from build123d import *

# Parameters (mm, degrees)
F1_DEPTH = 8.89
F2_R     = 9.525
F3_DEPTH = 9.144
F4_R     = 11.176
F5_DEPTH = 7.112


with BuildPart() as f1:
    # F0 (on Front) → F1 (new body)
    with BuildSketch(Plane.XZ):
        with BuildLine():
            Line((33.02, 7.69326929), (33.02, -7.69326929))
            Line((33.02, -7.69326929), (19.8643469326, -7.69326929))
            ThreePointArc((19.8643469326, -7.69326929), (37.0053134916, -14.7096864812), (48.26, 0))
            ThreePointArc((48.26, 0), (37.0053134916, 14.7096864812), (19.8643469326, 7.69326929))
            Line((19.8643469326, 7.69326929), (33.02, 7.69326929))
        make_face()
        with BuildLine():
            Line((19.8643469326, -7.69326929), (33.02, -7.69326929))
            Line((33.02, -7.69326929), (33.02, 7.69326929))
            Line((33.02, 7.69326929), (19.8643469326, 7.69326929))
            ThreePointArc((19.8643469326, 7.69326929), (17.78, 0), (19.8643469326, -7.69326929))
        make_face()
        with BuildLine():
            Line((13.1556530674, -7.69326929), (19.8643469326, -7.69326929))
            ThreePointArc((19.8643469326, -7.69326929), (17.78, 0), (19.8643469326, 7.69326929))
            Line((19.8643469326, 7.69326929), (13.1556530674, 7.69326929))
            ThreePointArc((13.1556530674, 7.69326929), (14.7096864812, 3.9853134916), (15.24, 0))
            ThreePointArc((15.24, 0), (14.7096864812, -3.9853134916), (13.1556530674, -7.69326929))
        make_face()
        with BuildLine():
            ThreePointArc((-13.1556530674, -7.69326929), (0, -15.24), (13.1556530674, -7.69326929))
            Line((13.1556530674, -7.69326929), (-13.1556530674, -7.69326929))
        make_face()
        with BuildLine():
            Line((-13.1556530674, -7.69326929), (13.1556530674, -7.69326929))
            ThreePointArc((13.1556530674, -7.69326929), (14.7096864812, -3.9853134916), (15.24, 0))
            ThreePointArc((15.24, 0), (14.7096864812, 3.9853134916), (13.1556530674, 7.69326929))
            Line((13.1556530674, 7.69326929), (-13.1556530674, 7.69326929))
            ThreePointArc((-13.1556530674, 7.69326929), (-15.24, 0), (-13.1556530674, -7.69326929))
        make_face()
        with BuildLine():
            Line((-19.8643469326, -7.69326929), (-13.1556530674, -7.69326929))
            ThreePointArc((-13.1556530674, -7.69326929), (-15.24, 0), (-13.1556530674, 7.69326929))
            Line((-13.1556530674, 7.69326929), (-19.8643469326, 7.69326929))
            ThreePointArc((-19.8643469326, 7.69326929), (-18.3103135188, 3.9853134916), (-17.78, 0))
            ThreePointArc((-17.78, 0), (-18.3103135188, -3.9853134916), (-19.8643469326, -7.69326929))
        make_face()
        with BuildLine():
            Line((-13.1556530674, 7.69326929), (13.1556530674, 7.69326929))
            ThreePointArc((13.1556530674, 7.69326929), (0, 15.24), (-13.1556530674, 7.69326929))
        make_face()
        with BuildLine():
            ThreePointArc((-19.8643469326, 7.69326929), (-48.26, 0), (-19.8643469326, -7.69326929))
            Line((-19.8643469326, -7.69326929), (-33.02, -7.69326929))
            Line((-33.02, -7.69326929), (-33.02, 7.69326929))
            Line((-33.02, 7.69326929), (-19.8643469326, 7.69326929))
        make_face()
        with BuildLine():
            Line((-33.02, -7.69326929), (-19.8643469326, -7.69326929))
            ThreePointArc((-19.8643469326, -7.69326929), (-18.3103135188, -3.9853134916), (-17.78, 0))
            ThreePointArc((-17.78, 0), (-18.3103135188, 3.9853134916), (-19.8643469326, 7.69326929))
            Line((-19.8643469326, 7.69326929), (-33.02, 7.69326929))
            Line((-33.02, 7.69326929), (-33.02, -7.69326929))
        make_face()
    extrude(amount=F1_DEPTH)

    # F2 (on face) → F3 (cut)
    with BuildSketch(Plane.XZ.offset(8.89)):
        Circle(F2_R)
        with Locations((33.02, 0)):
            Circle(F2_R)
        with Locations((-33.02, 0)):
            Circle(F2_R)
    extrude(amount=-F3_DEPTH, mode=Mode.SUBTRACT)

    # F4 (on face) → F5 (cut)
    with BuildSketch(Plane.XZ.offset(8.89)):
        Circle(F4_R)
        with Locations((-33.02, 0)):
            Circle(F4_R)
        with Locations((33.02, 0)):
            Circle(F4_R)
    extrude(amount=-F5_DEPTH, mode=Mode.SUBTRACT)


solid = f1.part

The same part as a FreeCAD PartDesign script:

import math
import FreeCAD as App
import Part
import Sketcher

V = App.Vector
Q = App.Units.Quantity

doc = App.newDocument("Part")
body = doc.addObject("PartDesign::Body", "Body")

# Sketch on XZ plane
sketch1 = body.newObject("Sketcher::SketchObject", "Sketch")
sketch1.AttachmentSupport = (doc.getObject("XZ_Plane"), [""])
sketch1.MapMode = "FlatFace"
sketch1.addGeometry([
    Part.ArcOfCircle(Part.Circle(V(33.02, 0, 0), V(0, 0, 1), 15.24), math.radians(-149.681412), math.radians(0)),  # 0
    Part.ArcOfCircle(Part.Circle(V(33.02, 0, 0), V(0, 0, 1), 15.24), math.radians(0), math.radians(149.681412)),  # 1
    Part.LineSegment(V(19.864347, 7.693269, 0), V(13.155653, 7.693269, 0)),  # 2
    Part.ArcOfCircle(Part.Circle(V(0, 0, 0), V(0, 0, 1), 15.24), math.radians(30.318588), math.radians(149.681412)),  # 3
    Part.LineSegment(V(-13.155653, 7.693269, 0), V(-19.864347, 7.693269, 0)),  # 4
    Part.ArcOfCircle(Part.Circle(V(-33.02, 0, 0), V(0, 0, 1), 15.24), math.radians(30.318588), math.radians(329.681412)),  # 5
    Part.LineSegment(V(-19.864347, -7.693269, 0), V(-13.155653, -7.693269, 0)),  # 6
    Part.ArcOfCircle(Part.Circle(V(0, 0, 0), V(0, 0, 1), 15.24), math.radians(-149.681412), math.radians(-30.318588)),  # 7
    Part.LineSegment(V(13.155653, -7.693269, 0), V(19.864347, -7.693269, 0)),  # 8
], False)
sketch1.addConstraint([
    Sketcher.Constraint("Tangent", 0, 2, 1, 1),
    Sketcher.Constraint("Coincident", 1, 2, 2, 1),
    Sketcher.Constraint("Coincident", 2, 2, 3, 1),
    Sketcher.Constraint("Coincident", 3, 2, 4, 1),
    Sketcher.Constraint("Coincident", 4, 2, 5, 1),
    Sketcher.Constraint("Coincident", 5, 2, 6, 1),
    Sketcher.Constraint("Coincident", 6, 2, 7, 1),
    Sketcher.Constraint("Coincident", 7, 2, 8, 1),
    Sketcher.Constraint("Coincident", 8, 2, 0, 1),
    Sketcher.Constraint("Horizontal", 2),
    Sketcher.Constraint("Horizontal", 4),
    Sketcher.Constraint("Horizontal", 6),
    Sketcher.Constraint("Horizontal", 8),
    Sketcher.Constraint("Coincident", 3, 3, -1, 1),
    Sketcher.Constraint("Coincident", 7, 3, -1, 1),
    Sketcher.Constraint("Equal", 0, 1),
    Sketcher.Constraint("Equal", 1, 3),
    Sketcher.Constraint("Equal", 3, 5),
    Sketcher.Constraint("Equal", 5, 7),
    Sketcher.Constraint("Symmetric", 0, 3, 5, 3, -1, 1),
    Sketcher.Constraint("Symmetric", 1, 2, 4, 2, -2),
    Sketcher.Constraint("PointOnObject", 0, 2, -1),
    Sketcher.Constraint("Horizontal", 6, 2, 7, 2),
    Sketcher.Constraint("Vertical", 4, 2, 5, 2),
    Sketcher.Constraint("Radius", 0, Q("0.6 in")),
    Sketcher.Constraint("DistanceX", -1, 1, 0, 3, Q("1.3 in")),
    Sketcher.Constraint("DistanceX", 2, 2, 2, 1, 6.708694),
])
pad1 = body.newObject("PartDesign::Pad", "Pad")
pad1.Profile = sketch1
pad1.Length = Q("0.35 in")

# Sketch on XZ plane
sketch2 = body.newObject("Sketcher::SketchObject", "Sketch001")
sketch2.AttachmentSupport = (doc.getObject("XZ_Plane"), [""])
sketch2.MapMode = "FlatFace"
sketch2.AttachmentOffset = App.Placement(V(0, 0, 0.35 * 25.4), App.Rotation())
sketch2.addGeometry([
    Part.Circle(V(0, 0, 0), V(0, 0, 1), 9.525),
    Part.Circle(V(33.02, 0, 0), V(0, 0, 1), 9.525),
    Part.Circle(V(-33.02, 0, 0), V(0, 0, 1), 9.525),
], False)
sketch2.addConstraint([
    Sketcher.Constraint("Coincident", 0, 3, -1, 1),
    Sketcher.Constraint("Equal", 0, 1),
    Sketcher.Constraint("Equal", 1, 2),
    Sketcher.Constraint("Symmetric", 1, 3, 2, 3, -1, 1),
    Sketcher.Constraint("PointOnObject", 1, 3, -1),
    Sketcher.Constraint("Diameter", 0, Q("0.75 in")),
    Sketcher.Constraint("DistanceX", -1, 1, 1, 3, Q("1.3 in")),
])
pocket1 = body.newObject("PartDesign::Pocket", "Pocket")
pocket1.Profile = sketch2
pocket1.Length = Q("0.36 in")

# Sketch on XZ plane
sketch3 = body.newObject("Sketcher::SketchObject", "Sketch002")
sketch3.AttachmentSupport = (doc.getObject("XZ_Plane"), [""])
sketch3.MapMode = "FlatFace"
sketch3.AttachmentOffset = App.Placement(V(0, 0, 0.35 * 25.4), App.Rotation())
sketch3.addGeometry([
    Part.Circle(V(0, 0, 0), V(0, 0, 1), 11.176),
    Part.Circle(V(-33.02, 0, 0), V(0, 0, 1), 11.176),
    Part.Circle(V(33.02, 0, 0), V(0, 0, 1), 11.176),
], False)
sketch3.addConstraint([
    Sketcher.Constraint("Coincident", 0, 3, -1, 1),
    Sketcher.Constraint("Equal", 0, 1),
    Sketcher.Constraint("Equal", 1, 2),
    Sketcher.Constraint("Symmetric", 1, 3, 2, 3, -1, 1),
    Sketcher.Constraint("PointOnObject", 1, 3, -1),
    Sketcher.Constraint("Diameter", 0, Q("0.88 in")),
    Sketcher.Constraint("DistanceX", 1, 3, -1, 1, Q("1.3 in")),
])
pocket2 = body.newObject("PartDesign::Pocket", "Pocket001")
pocket2.Profile = sketch3
pocket2.Length = Q("0.28 in")

doc.recompute()
